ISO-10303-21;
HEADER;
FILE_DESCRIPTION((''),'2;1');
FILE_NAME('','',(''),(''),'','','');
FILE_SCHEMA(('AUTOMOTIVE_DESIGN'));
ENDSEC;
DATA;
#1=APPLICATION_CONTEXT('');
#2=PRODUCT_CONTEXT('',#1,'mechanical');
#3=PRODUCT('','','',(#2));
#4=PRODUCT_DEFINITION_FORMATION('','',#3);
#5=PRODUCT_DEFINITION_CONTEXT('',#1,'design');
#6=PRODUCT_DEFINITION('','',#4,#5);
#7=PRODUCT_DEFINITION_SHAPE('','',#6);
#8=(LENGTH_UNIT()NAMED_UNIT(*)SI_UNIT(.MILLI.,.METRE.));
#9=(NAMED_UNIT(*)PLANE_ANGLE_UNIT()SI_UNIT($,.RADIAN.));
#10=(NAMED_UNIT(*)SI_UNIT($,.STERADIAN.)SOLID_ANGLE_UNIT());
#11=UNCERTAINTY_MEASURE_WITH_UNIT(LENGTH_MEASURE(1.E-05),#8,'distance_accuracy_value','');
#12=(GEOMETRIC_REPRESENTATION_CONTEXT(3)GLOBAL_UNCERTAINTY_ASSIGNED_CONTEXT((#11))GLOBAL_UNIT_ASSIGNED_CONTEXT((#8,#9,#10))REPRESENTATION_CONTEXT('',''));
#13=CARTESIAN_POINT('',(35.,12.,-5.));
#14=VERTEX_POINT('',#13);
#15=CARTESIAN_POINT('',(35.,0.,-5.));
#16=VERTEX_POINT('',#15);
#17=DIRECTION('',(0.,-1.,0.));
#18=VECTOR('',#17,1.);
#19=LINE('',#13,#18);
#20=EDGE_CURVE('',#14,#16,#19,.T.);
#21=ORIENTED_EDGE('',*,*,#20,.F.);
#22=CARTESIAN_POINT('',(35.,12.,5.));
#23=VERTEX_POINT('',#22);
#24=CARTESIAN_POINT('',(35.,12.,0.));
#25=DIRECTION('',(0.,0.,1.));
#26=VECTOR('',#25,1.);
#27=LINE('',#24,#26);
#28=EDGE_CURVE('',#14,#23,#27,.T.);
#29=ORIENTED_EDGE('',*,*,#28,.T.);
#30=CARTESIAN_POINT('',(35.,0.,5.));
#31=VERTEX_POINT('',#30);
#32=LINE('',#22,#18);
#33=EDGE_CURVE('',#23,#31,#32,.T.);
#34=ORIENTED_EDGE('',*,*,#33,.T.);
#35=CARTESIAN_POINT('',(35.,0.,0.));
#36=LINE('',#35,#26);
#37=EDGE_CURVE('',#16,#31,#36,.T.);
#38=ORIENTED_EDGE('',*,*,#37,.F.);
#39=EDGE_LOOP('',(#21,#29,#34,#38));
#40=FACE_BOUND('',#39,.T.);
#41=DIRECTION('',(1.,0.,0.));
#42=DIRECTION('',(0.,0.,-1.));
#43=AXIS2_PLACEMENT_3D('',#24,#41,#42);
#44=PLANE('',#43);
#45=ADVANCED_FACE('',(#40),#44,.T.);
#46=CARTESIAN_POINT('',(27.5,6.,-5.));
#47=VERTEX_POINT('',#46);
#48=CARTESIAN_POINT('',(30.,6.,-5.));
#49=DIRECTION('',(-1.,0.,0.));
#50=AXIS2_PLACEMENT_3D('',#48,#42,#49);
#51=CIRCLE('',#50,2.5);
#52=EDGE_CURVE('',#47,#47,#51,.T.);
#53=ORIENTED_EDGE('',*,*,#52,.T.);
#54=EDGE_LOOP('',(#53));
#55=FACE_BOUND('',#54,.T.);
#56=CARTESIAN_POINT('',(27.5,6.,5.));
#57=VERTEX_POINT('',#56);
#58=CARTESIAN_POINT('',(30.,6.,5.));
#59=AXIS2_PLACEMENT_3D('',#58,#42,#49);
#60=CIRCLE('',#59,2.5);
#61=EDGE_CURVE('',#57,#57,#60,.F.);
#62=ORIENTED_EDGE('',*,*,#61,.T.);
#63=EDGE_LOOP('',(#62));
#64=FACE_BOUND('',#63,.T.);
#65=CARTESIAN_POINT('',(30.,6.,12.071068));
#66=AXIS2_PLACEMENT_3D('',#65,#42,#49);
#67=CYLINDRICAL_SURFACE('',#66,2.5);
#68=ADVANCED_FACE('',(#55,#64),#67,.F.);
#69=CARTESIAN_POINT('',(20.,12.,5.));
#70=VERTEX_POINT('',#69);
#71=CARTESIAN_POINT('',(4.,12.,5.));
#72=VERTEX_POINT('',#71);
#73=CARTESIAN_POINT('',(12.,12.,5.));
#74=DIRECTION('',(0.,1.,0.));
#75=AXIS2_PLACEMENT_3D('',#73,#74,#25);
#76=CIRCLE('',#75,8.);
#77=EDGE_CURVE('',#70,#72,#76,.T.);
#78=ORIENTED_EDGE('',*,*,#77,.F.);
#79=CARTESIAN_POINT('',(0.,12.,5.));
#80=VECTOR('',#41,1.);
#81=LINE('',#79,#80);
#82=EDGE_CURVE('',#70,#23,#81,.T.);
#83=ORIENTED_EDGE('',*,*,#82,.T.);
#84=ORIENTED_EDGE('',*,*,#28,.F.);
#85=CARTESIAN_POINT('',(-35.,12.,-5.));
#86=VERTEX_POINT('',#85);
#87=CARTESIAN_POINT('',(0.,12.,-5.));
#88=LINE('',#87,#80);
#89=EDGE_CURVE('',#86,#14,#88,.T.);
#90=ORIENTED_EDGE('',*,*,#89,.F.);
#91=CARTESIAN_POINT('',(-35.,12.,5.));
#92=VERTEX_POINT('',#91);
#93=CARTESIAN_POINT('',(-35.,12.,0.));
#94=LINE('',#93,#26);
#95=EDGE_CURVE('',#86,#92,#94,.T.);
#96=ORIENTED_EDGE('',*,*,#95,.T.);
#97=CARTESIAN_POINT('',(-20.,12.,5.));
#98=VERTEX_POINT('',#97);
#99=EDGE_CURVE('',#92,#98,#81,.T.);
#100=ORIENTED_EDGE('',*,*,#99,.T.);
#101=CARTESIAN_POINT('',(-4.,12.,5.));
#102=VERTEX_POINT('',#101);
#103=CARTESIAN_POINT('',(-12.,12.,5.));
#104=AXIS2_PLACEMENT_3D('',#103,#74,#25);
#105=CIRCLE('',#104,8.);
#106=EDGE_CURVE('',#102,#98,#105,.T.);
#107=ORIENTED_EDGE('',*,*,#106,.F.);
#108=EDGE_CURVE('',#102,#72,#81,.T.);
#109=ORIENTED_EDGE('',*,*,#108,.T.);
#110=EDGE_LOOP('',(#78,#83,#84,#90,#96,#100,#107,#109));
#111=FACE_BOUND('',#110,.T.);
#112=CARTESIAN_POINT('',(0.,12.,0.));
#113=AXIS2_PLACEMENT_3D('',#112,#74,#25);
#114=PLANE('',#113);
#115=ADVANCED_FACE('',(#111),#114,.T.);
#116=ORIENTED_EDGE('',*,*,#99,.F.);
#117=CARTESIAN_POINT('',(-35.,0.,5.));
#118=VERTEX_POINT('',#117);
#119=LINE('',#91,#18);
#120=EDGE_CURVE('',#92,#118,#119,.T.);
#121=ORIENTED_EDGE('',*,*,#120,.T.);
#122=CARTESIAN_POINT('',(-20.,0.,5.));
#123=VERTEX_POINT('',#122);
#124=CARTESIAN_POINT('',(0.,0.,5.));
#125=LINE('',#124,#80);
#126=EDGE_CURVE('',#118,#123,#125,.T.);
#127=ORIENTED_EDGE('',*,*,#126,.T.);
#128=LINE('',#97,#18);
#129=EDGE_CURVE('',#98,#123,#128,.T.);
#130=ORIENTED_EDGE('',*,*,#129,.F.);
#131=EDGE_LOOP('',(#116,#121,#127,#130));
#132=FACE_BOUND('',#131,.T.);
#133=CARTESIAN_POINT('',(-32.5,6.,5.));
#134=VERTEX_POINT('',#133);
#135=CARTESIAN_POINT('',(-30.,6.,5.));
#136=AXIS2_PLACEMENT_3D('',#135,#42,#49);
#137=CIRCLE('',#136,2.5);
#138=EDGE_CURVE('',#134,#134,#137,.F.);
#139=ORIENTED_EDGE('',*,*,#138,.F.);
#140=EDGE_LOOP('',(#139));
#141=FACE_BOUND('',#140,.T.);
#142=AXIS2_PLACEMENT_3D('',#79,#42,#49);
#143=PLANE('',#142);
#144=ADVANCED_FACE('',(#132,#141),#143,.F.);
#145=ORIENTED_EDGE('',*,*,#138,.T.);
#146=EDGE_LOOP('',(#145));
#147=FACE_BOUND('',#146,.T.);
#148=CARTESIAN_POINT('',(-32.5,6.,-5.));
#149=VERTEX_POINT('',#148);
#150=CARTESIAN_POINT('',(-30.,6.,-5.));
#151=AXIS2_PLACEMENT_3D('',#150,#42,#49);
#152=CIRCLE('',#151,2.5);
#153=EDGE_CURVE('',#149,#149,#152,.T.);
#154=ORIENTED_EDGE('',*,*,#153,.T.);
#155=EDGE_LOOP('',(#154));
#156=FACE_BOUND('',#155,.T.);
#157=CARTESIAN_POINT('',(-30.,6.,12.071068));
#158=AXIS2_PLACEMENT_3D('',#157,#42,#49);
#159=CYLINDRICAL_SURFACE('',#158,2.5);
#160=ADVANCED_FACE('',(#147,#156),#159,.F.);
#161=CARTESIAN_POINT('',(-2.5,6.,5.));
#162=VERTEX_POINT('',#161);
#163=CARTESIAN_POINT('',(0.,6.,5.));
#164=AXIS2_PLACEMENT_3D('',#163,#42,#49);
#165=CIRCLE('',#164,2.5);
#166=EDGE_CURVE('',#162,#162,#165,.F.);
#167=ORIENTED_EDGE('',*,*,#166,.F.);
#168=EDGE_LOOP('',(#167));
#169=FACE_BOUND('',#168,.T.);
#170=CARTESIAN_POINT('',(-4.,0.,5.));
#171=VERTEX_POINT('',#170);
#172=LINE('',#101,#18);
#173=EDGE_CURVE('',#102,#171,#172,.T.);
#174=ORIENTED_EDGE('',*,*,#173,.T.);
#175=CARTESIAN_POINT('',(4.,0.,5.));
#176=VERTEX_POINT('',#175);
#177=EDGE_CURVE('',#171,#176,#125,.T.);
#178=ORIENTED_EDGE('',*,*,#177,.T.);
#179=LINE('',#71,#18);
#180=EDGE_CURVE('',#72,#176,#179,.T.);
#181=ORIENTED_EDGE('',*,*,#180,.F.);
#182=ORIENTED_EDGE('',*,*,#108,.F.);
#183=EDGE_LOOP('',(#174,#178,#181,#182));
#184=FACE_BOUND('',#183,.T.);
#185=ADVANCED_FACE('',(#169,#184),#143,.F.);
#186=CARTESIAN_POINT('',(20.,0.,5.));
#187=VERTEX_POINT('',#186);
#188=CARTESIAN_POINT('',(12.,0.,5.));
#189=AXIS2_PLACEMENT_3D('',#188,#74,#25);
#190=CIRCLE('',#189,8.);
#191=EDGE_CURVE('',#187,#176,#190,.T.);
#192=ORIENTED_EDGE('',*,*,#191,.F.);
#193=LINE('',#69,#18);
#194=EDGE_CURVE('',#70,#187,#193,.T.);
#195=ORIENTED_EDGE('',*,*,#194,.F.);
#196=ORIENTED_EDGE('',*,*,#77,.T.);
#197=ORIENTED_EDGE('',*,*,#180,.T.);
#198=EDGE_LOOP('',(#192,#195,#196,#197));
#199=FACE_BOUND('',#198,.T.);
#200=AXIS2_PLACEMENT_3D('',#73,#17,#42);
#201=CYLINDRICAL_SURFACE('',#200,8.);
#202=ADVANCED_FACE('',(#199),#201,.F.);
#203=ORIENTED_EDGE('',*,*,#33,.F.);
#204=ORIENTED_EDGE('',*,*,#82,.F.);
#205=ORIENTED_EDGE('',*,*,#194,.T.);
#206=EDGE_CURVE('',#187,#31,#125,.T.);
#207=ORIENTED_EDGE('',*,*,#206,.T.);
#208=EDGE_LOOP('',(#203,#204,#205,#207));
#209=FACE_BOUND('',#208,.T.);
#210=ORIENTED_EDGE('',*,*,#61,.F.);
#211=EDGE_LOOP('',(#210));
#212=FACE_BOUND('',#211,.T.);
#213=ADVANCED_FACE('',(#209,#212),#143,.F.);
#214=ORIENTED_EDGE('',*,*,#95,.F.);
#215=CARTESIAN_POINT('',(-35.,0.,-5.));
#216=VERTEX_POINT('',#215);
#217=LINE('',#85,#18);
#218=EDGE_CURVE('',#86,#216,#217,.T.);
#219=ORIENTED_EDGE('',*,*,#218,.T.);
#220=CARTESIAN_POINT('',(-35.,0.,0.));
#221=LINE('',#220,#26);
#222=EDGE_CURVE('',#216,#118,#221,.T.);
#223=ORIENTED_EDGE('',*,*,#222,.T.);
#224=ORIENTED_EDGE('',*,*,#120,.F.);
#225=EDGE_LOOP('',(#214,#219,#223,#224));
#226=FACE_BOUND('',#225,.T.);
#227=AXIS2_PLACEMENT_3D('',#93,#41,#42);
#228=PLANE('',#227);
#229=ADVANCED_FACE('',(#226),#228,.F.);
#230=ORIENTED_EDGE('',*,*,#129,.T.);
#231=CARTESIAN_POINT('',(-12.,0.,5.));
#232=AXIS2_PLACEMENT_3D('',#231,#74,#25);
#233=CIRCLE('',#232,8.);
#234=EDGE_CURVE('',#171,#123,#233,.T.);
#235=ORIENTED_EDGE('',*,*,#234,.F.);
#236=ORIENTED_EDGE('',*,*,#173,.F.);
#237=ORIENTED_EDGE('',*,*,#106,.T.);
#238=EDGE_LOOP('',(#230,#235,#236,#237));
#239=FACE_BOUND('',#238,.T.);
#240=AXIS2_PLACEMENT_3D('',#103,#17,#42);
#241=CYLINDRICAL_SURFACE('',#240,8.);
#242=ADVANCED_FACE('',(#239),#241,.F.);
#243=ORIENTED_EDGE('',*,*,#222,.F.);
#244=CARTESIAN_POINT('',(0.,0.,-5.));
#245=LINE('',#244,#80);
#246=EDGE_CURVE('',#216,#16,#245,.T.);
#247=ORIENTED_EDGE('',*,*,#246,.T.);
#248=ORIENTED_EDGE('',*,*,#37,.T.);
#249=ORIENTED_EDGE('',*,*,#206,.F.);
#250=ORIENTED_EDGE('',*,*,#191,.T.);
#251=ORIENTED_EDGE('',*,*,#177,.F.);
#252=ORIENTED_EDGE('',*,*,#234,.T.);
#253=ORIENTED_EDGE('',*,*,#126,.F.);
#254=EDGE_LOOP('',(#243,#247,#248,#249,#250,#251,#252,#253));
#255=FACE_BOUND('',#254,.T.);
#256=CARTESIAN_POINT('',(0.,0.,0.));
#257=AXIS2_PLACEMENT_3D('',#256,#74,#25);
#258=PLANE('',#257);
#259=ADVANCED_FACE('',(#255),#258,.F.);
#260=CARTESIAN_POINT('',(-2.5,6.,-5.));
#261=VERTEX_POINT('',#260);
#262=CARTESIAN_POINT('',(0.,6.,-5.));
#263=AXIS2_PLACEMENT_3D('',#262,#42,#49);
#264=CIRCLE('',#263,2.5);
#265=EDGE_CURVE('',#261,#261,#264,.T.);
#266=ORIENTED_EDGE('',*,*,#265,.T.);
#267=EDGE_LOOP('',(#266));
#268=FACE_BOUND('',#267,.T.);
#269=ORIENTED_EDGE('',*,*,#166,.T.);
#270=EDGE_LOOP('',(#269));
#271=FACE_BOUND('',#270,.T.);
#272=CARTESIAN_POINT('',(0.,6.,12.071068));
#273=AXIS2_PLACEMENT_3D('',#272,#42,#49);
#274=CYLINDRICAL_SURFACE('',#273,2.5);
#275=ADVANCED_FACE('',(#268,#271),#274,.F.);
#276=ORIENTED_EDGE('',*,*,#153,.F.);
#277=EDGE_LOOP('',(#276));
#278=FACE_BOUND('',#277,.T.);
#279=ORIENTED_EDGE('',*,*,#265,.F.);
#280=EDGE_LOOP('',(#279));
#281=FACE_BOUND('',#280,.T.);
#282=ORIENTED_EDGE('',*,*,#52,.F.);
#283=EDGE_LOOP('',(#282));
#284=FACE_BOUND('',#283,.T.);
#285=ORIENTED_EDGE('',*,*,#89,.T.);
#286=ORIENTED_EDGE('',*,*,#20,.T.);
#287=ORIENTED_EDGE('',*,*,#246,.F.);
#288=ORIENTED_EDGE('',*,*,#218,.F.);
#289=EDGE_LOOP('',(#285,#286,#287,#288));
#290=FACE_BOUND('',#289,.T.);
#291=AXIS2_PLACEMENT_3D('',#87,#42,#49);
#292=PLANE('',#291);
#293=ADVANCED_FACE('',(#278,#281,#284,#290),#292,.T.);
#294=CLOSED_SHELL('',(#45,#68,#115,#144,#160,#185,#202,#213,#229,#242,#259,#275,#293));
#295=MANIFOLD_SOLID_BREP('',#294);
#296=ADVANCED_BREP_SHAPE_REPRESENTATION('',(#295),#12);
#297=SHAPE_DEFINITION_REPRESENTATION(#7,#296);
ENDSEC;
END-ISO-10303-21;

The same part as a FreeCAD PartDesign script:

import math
import FreeCAD as App
import Part
import Sketcher

V = App.Vector

doc = App.newDocument("Part")
body = doc.addObject("PartDesign::Body", "Body")

sketch1 = body.newObject("Sketcher::SketchObject", "Sketch")
sketch1.AttachmentSupport = (doc.getObject("XZ_Plane"), [""])
sketch1.MapMode = "FlatFace"
sketch1.addGeometry([
    Part.LineSegment(V(35, -5, 0), V(-35, -5, 0)),
    Part.LineSegment(V(-35, -5, 0), V(-35, 5, 0)),
    Part.LineSegment(V(-35, 5, 0), V(-20, 5, 0)),
    Part.ArcOfCircle(Part.Circle(V(-12, 5, 0), V(0, 0, 1), 8), math.radians(180), math.radians(360)),
    Part.LineSegment(V(-4, 5, 0), V(4, 5, 0)),
    Part.ArcOfCircle(Part.Circle(V(12, 5, 0), V(0, 0, 1), 8), math.radians(180), math.radians(360)),
    Part.LineSegment(V(20, 5, 0), V(35, 5, 0)),
    Part.LineSegment(V(35, 5, 0), V(35, -5, 0)),
], False)
sketch1.addConstraint([
    Sketcher.Constraint("Coincident", 0, 2, 1, 1),
    Sketcher.Constraint("Coincident", 1, 2, 2, 1),
    Sketcher.Constraint("Coincident", 2, 2, 3, 1),
    Sketcher.Constraint("Coincident", 3, 2, 4, 1),
    Sketcher.Constraint("Coincident", 4, 2, 5, 1),
    Sketcher.Constraint("Coincident", 5, 2, 6, 1),
    Sketcher.Constraint("Coincident", 6, 2, 7, 1),
    Sketcher.Constraint("Coincident", 7, 2, 0, 1),
    Sketcher.Constraint("Horizontal", 0),
    Sketcher.Constraint("Vertical", 1),
    Sketcher.Constraint("Horizontal", 2),
    Sketcher.Constraint("Horizontal", 4),
    Sketcher.Constraint("Horizontal", 6),
    Sketcher.Constraint("Vertical", 7),
    Sketcher.Constraint("Equal", 3, 5),
    Sketcher.Constraint("Symmetric", 0, 2, 6, 2, -1, 1),
    Sketcher.Constraint("Symmetric", 3, 3, 5, 3, -2),
    Sketcher.Constraint("Horizontal", 5, 3, 1, 2),
    Sketcher.Constraint("Horizontal", 2, 2, 3, 2),
    Sketcher.Constraint("Horizontal", 4, 2, 5, 2),
    Sketcher.Constraint("Radius", 3, 8.0),
    Sketcher.Constraint("DistanceX", 0, 2, 0, 1, 70.0),
    Sketcher.Constraint("DistanceX", 2, 1, 2, 2, 15.0),
    Sketcher.Constraint("DistanceY", 1, 1, 1, 2, 10.0),
])
pad1 = body.newObject("PartDesign::Pad", "Pad")
pad1.Profile = sketch1
pad1.Length = 12
pad1.Reversed = True

sketch2 = body.newObject("Sketcher::SketchObject", "Sketch001")
sketch2.AttachmentSupport = (doc.getObject("XY_Plane"), [""])
sketch2.MapMode = "FlatFace"
sketch2.AttachmentOffset = App.Placement(V(0, 0, -5), App.Rotation())
sketch2.addGeometry([
    Part.Circle(V(0, 6, 0), V(0, 0, 1), 2.5),
    Part.Circle(V(30, 6, 0), V(0, 0, 1), 2.5),
    Part.Circle(V(-30, 6, 0), V(0, 0, 1), 2.5),
], False)
sketch2.addConstraint([
    Sketcher.Constraint("Equal", 0, 1),
    Sketcher.Constraint("Equal", 1, 2),
    Sketcher.Constraint("Symmetric", 1, 3, 2, 3, -2),
    Sketcher.Constraint("PointOnObject", 0, 3, -2),
    Sketcher.Constraint("Horizontal", 0, 3, 1, 3),
    Sketcher.Constraint("Diameter", 0, 5.0),
    Sketcher.Constraint("DistanceY", -1, 1, 0, 3, 6.0),
    Sketcher.Constraint("DistanceX", -1, 1, 1, 3, 30.0),
])
pocket1 = body.newObject("PartDesign::Pocket", "Pocket")
pocket1.Profile = sketch2
pocket1.Length = 10
pocket1.Reversed = True

doc.recompute()
